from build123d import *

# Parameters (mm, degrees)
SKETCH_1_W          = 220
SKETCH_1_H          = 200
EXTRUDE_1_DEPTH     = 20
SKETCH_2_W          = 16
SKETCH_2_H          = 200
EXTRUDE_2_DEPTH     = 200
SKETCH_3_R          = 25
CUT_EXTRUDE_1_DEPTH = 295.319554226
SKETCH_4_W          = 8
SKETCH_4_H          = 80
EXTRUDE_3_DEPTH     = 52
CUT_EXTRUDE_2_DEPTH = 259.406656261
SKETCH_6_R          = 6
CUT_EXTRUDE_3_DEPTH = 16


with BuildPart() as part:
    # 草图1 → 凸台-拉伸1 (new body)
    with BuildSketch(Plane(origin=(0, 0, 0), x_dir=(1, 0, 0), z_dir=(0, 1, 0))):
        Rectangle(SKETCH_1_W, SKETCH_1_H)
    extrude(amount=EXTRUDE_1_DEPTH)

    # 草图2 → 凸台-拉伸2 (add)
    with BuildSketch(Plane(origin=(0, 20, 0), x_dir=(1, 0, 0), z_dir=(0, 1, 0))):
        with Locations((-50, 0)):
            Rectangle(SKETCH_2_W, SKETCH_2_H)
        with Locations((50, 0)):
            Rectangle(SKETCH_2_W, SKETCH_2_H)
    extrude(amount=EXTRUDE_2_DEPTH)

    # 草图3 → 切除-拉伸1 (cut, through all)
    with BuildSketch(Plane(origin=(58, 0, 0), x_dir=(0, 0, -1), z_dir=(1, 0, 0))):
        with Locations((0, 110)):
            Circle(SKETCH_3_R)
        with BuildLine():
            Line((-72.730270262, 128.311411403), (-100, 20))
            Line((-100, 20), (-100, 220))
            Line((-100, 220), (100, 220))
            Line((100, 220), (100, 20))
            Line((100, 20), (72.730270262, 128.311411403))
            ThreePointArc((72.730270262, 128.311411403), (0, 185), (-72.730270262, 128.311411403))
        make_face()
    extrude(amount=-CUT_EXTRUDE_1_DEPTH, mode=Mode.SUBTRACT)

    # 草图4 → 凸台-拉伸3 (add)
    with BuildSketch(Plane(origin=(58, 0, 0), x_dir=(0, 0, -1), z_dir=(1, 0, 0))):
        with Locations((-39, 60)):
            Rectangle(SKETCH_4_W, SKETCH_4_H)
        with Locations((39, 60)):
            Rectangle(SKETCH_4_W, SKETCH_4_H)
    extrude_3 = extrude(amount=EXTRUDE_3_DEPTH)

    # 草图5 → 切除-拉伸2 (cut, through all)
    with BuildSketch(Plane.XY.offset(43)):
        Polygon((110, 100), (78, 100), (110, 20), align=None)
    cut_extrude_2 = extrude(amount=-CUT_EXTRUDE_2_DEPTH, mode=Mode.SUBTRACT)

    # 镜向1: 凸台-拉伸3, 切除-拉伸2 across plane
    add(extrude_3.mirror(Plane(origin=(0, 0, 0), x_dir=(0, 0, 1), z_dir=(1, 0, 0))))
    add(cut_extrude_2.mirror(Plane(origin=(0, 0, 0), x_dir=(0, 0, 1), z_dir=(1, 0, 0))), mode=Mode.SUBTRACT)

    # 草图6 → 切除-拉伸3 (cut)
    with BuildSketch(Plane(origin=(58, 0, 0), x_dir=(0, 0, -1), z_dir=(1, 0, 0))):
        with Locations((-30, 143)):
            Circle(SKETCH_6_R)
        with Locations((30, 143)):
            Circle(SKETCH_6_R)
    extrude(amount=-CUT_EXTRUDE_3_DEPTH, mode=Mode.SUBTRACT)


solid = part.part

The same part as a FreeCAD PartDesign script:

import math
import FreeCAD as App
import Part
import Sketcher

V = App.Vector


def add_polygon(sketch, points):
    """Adds a closed chain of lines whose ends are joined by coincident constraints."""
    first, n = sketch.GeometryCount, len(points)
    for a, b in zip(points, points[1:] + points[:1]):
        sketch.addGeometry(Part.LineSegment(App.Vector(*a, 0), App.Vector(*b, 0)), False)
    for i in range(n):
        sketch.addConstraint(Sketcher.Constraint("Coincident", first + i, 2, first + (i + 1) % n, 1))

doc = App.newDocument("Part")
body = doc.addObject("PartDesign::Body", "Body")

sketch1 = doc.addObject("Sketcher::SketchObject", "Sketch")
body.addObject(sketch1)
sketch1.AttachmentSupport = (doc.XZ_Plane, [""])
sketch1.MapMode = "FlatFace"
add_polygon(sketch1, [(-110, -100), (-110, 100), (110, 100), (110, -100)])
sketch1.addConstraint([
    Sketcher.Constraint("Vertical", 0),
    Sketcher.Constraint("Horizontal", 1),
    Sketcher.Constraint("Vertical", 2),
    Sketcher.Constraint("Horizontal", 3),
    Sketcher.Constraint("Symmetric", 0, 2, 2, 2, -1, 1),
    Sketcher.Constraint("DistanceX", 1, 1, 1, 2, 220.0),
    Sketcher.Constraint("DistanceY", 0, 1, 0, 2, 200.0),
])
pad1 = doc.addObject("PartDesign::Pad", "Pad")
body.addObject(pad1)
pad1.Profile = sketch1
pad1.Length = 20
pad1.Reversed = True

sketch2 = doc.addObject("Sketcher::SketchObject", "Sketch001")
body.addObject(sketch2)
sketch2.AttachmentSupport = (doc.XZ_Plane, [""])
sketch2.MapMode = "FlatFace"
sketch2.AttachmentOffset = App.Placement(V(0, 0, -20), App.Rotation())
add_polygon(sketch2, [(-58, -100), (-58, 100), (-42, 100), (-42, -100)])
add_polygon(sketch2, [(42, -100), (42, 100), (58, 100), (58, -100)])
sketch2.addConstraint([
    Sketcher.Constraint("Vertical", 0),
    Sketcher.Constraint("Horizontal", 1),
    Sketcher.Constraint("Vertical", 2),
    Sketcher.Constraint("Horizontal", 3),
    Sketcher.Constraint("Vertical", 4),
    Sketcher.Constraint("Horizontal", 5),
    Sketcher.Constraint("Vertical", 6),
    Sketcher.Constraint("Horizontal", 7),
    Sketcher.Constraint("Symmetric", 2, 2, 4, 2, -1, 1),
    Sketcher.Constraint("Symmetric", 0, 2, 6, 2, -1, 1),
    Sketcher.Constraint("Horizontal", 1, 2, 4, 2),
    Sketcher.Constraint("DistanceX", 1, 1, 1, 2, 16.0),
    Sketcher.Constraint("DistanceY", 0, 1, 0, 2, 200.0),
    Sketcher.Constraint("DistanceX", 0, 2, -1, 1, 58.0),
])
pad2 = doc.addObject("PartDesign::Pad", "Pad001")
body.addObject(pad2)
pad2.Profile = sketch2
pad2.Length = 200
pad2.Reversed = True

sketch3 = doc.addObject("Sketcher::SketchObject", "Sketch002")
body.addObject(sketch3)
sketch3.AttachmentSupport = (doc.YZ_Plane, [""])
sketch3.MapMode = "FlatFace"
sketch3.AttachmentOffset = App.Placement(V(0, 0, 58), App.Rotation())
sketch3.addGeometry([
    Part.Circle(V(110, 0, 0), V(0, 0, 1), 25),
    Part.LineSegment(V(20, 100, 0), V(128.311411, 72.73027, 0)),
    Part.ArcOfCircle(Part.Circle(V(110, 0, 0), V(0, 0, 1), 75), math.radians(-75.868266), math.radians(75.868266)),
    Part.LineSegment(V(128.311411, -72.73027, 0), V(20, -100, 0)),
    Part.LineSegment(V(20, -100, 0), V(220, -100, 0)),
    Part.LineSegment(V(220, -100, 0), V(220, 100, 0)),
    Part.LineSegment(V(220, 100, 0), V(20, 100, 0)),
], False)
sketch3.addConstraint([
    Sketcher.Constraint("Tangent", 1, 2, 2, 2),
    Sketcher.Constraint("Tangent", 2, 1, 3, 1),
    Sketcher.Constraint("Coincident", 3, 2, 4, 1),
    Sketcher.Constraint("Coincident", 4, 2, 5, 1),
    Sketcher.Constraint("Coincident", 5, 2, 6, 1),
    Sketcher.Constraint("Coincident", 6, 2, 1, 1),
    Sketcher.Constraint("Horizontal", 4),
    Sketcher.Constraint("Vertical", 5),
    Sketcher.Constraint("Horizontal", 6),
    Sketcher.Constraint("Coincident", 2, 3, 0, 3),
    Sketcher.Constraint("Symmetric", 1, 2, 2, 1, -1),
    Sketcher.Constraint("Vertical", 3, 2, 6, 2),
    Sketcher.Constraint("Equal", 6, 5),
    Sketcher.Constraint("Diameter", 0, 50.0),
    Sketcher.Constraint("Radius", 2, 75.0),
    Sketcher.Constraint("DistanceX", 4, 1, 4, 2, 200.0),
    Sketcher.Constraint("DistanceX", -1, 1, 0, 3, 110.0),
    Sketcher.Constraint("DistanceX", -1, 1, 3, 2, 20.0),
])
pocket1 = doc.addObject("PartDesign::Pocket", "Pocket")
body.addObject(pocket1)
pocket1.Profile = sketch3
pocket1.Type = "ThroughAll"

sketch4 = doc.addObject("Sketcher::SketchObject", "Sketch003")
body.addObject(sketch4)
sketch4.AttachmentSupport = (doc.YZ_Plane, [""])
sketch4.MapMode = "FlatFace"
sketch4.AttachmentOffset = App.Placement(V(0, 0, 58), App.Rotation())
add_polygon(sketch4, [(100, 43), (20, 43), (20, 35), (100, 35)])
add_polygon(sketch4, [(100, -35), (20, -35), (20, -43), (100, -43)])
sketch4.addConstraint([
    Sketcher.Constraint("Horizontal", 0),
    Sketcher.Constraint("Vertical", 1),
    Sketcher.Constraint("Horizontal", 2),
    Sketcher.Constraint("Vertical", 3),
    Sketcher.Constraint("Horizontal", 4),
    Sketcher.Constraint("Vertical", 5),
    Sketcher.Constraint("Horizontal", 6),
    Sketcher.Constraint("Vertical", 7),
    Sketcher.Constraint("Symmetric", 1, 2, 4, 2, -1),
    Sketcher.Constraint("Symmetric", 3, 2, 6, 2, -1),
    Sketcher.Constraint("DistanceX", 0, 2, 0, 1, 80.0),
    Sketcher.Constraint("DistanceY", 1, 2, 1, 1, 8.0),
    Sketcher.Constraint("DistanceX", -1, 1, 0, 2, 20.0),
    Sketcher.Constraint("DistanceY", -1, 1, 0, 2, 43.0),
])
pad3 = doc.addObject("PartDesign::Pad", "Pad002")
body.addObject(pad3)
pad3.Profile = sketch4
pad3.Length = 52

sketch5 = doc.addObject("Sketcher::SketchObject", "Sketch004")
body.addObject(sketch5)
sketch5.AttachmentSupport = (doc.XY_Plane, [""])
sketch5.MapMode = "FlatFace"
sketch5.AttachmentOffset = App.Placement(V(0, 0, 43), App.Rotation())
add_polygon(sketch5, [(110, 100), (78, 100), (110, 20)])
sketch5.addConstraint([
    Sketcher.Constraint("Horizontal", 0),
    Sketcher.Constraint("Vertical", 2),
    Sketcher.Constraint("DistanceX", 0, 2, 0, 1, 32.0),
    Sketcher.Constraint("DistanceY", 2, 1, 2, 2, 80.0),
    Sketcher.Constraint("DistanceX", -1, 1, 0, 2, 78.0),
    Sketcher.Constraint("DistanceY", -1, 1, 0, 2, 100.0),
])
pocket2 = doc.addObject("PartDesign::Pocket", "Pocket001")
body.addObject(pocket2)
pocket2.Profile = sketch5
pocket2.Type = "ThroughAll"
doc.recompute()

mirrored = doc.addObject("PartDesign::Mirrored", "Mirrored")
body.addObject(mirrored)
mirrored.Originals = [pad3, pocket2]
mirrored.MirrorPlane = (doc.YZ_Plane, [""])
body.Tip = mirrored

sketch6 = doc.addObject("Sketcher::SketchObject", "Sketch005")
body.addObject(sketch6)
sketch6.AttachmentSupport = (doc.YZ_Plane, [""])
sketch6.MapMode = "FlatFace"
sketch6.AttachmentOffset = App.Placement(V(0, 0, 58), App.Rotation())
sketch6.addGeometry([
    Part.Circle(V(143, 30, 0), V(0, 0, 1), 6),
    Part.Circle(V(143, -30, 0), V(0, 0, 1), 6),
], False)
sketch6.addConstraint([
    Sketcher.Constraint("Equal", 0, 1),
    Sketcher.Constraint("Symmetric", 0, 3, 1, 3, -1),
    Sketcher.Constraint("Diameter", 0, 12.0),
    Sketcher.Constraint("DistanceX", -1, 1, 0, 3, 143.0),
    Sketcher.Constraint("DistanceY", -1, 1, 0, 3, 30.0),
])
pocket3 = doc.addObject("PartDesign::Pocket", "Pocket002")
body.addObject(pocket3)
pocket3.Profile = sketch6
pocket3.Length = 16

doc.recompute()
